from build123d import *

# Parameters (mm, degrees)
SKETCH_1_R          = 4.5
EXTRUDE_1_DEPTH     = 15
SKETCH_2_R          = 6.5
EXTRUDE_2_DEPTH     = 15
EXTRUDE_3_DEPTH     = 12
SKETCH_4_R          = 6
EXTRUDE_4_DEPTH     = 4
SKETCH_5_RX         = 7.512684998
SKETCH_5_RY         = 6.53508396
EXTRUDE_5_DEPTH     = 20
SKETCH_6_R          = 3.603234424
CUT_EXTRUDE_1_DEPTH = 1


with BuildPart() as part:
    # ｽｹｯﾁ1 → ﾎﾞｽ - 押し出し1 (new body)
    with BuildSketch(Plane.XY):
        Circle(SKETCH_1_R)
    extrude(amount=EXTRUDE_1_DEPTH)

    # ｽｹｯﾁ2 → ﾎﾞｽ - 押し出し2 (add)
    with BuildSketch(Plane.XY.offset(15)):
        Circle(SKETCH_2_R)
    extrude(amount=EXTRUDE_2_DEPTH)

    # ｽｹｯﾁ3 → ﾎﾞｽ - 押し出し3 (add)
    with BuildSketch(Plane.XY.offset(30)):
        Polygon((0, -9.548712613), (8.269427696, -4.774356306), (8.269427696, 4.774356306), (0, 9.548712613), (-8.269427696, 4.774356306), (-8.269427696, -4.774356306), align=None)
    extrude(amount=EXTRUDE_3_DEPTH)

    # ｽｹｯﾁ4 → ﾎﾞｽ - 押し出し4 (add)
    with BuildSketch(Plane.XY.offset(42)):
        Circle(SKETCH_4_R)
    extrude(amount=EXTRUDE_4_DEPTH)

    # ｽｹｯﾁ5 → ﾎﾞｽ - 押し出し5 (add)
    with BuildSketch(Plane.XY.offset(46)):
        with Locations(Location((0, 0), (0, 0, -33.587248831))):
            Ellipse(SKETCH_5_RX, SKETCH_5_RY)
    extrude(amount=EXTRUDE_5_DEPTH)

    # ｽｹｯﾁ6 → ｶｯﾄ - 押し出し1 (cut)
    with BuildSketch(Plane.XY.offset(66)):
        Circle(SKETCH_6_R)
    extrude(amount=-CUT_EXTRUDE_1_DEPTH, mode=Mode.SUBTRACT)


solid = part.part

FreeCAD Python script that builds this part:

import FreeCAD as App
import Part
import Sketcher
from FreeCAD import Vector
Q = App.Units.Quantity

doc = App.newDocument("Part")
body = doc.addObject("PartDesign::Body", "Body")

# Sketch on XY plane
sketch1 = doc.addObject("Sketcher::SketchObject", "Sketch")
body.addObject(sketch1)
sketch1.AttachmentSupport = (doc.XY_Plane, [""])
sketch1.MapMode = "FlatFace"
sketch1.addGeometry(Part.Circle(Vector(0, 0, 0), Vector(0, 0, 1), 4.5), False)
sketch1.addConstraint([
    Sketcher.Constraint("Coincident", 0, 3, -1, 1),
    Sketcher.Constraint("Diameter", 0, 9.0),
])
pad1 = doc.addObject("PartDesign::Pad", "Pad")
body.addObject(pad1)
pad1.Profile = sketch1
pad1.Length = 15

# Sketch on XY plane
sketch2 = doc.addObject("Sketcher::SketchObject", "Sketch001")
body.addObject(sketch2)
sketch2.AttachmentSupport = (doc.XY_Plane, [""])
sketch2.MapMode = "FlatFace"
sketch2.AttachmentOffset = App.Placement(Vector(0, 0, 15), App.Rotation())
sketch2.addGeometry(Part.Circle(Vector(0, 0, 0), Vector(0, 0, 1), 6), False)
sketch2.addConstraint([
    Sketcher.Constraint("Coincident", 0, 3, -1, 1),
    Sketcher.Constraint("Diameter", 0, 13.0),
])
pad2 = doc.addObject("PartDesign::Pad", "Pad001")
body.addObject(pad2)
pad2.Profile = sketch2
pad2.Length = 15

# Sketch on XY plane
sketch3 = doc.addObject("Sketcher::SketchObject", "Sketch002")
body.addObject(sketch3)
sketch3.AttachmentSupport = (doc.XY_Plane, [""])
sketch3.MapMode = "FlatFace"
sketch3.AttachmentOffset = App.Placement(Vector(0, 0, 30), App.Rotation())
sketch3.addGeometry([
    Part.LineSegment(Vector(0, -10, 0), Vector(8, -5, 0)),  # 0
    Part.LineSegment(Vector(8, -5, 0), Vector(8, 5, 0)),  # 1
    Part.LineSegment(Vector(8, 5, 0), Vector(0, 10, 0)),  # 2
    Part.LineSegment(Vector(0, 10, 0), Vector(-8, 5, 0)),  # 3
    Part.LineSegment(Vector(-8, 5, 0), Vector(-8, -5, 0)),  # 4
    Part.LineSegment(Vector(-8, -5, 0), Vector(0, -10, 0)),  # 5
], False)
sketch3.addConstraint([
    Sketcher.Constraint("Coincident", 0, 2, 1, 1),
    Sketcher.Constraint("Coincident", 1, 2, 2, 1),
    Sketcher.Constraint("Coincident", 2, 2, 3, 1),
    Sketcher.Constraint("Coincident", 3, 2, 4, 1),
    Sketcher.Constraint("Coincident", 4, 2, 5, 1),
    Sketcher.Constraint("Coincident", 5, 2, 0, 1),
    Sketcher.Constraint("Vertical", 1),
    Sketcher.Constraint("Vertical", 4),
    Sketcher.Constraint("Symmetric", 0, 2, 3, 2, -1, 1),
    Sketcher.Constraint("Symmetric", 2, 2, 5, 2, -1, 1),
    Sketcher.Constraint("PointOnObject", 2, 2, -2),
    Sketcher.Constraint("Parallel", 2, 5),
    Sketcher.Constraint("Horizontal", 1, 2, 3, 2),
    Sketcher.Constraint("Angle", 0, Q("30 deg")),
    Sketcher.Constraint("DistanceY", 1, 1, 1, 2, 9.548713),
    Sketcher.Constraint("DistanceY", 0, 2, 2, 2, 14.323069),
])
pad3 = doc.addObject("PartDesign::Pad", "Pad002")
body.addObject(pad3)
pad3.Profile = sketch3
pad3.Length = 12

# Sketch on XY plane
sketch4 = doc.addObject("Sketcher::SketchObject", "Sketch003")
body.addObject(sketch4)
sketch4.AttachmentSupport = (doc.XY_Plane, [""])
sketch4.MapMode = "FlatFace"
sketch4.AttachmentOffset = App.Placement(Vector(0, 0, 42), App.Rotation())
sketch4.addGeometry(Part.Circle(Vector(0, 0, 0), Vector(0, 0, 1), 6), False)
sketch4.addConstraint([
    Sketcher.Constraint("Coincident", 0, 3, -1, 1),
    Sketcher.Constraint("Diameter", 0, 12.0),
])
pad4 = doc.addObject("PartDesign::Pad", "Pad003")
body.addObject(pad4)
pad4.Profile = sketch4
pad4.Length = 4

# Sketch on XY plane
sketch5 = doc.addObject("Sketcher::SketchObject", "Sketch004")
body.addObject(sketch5)
sketch5.AttachmentSupport = (doc.XY_Plane, [""])
sketch5.MapMode = "FlatFace"
sketch5.AttachmentOffset = App.Placement(Vector(0, 0, 46), App.Rotation())
sketch5.addGeometry(Part.Ellipse(Vector(6.2584, -4.156064, 0), Vector(3.615249, 5.444015, 0), Vector(0, 0, 0)), False)
sketch5.addConstraint(Sketcher.Constraint("Block", 0))
pad5 = doc.addObject("PartDesign::Pad", "Pad004")
body.addObject(pad5)
pad5.Profile = sketch5
pad5.Length = 20

# Sketch on XY plane
sketch6 = doc.addObject("Sketcher::SketchObject", "Sketch005")
body.addObject(sketch6)
sketch6.AttachmentSupport = (doc.XY_Plane, [""])
sketch6.MapMode = "FlatFace"
sketch6.AttachmentOffset = App.Placement(Vector(0, 0, 66), App.Rotation())
sketch6.addGeometry(Part.Circle(Vector(0, 0, 0), Vector(0, 0, 1), 3.6), False)
sketch6.addConstraint([
    Sketcher.Constraint("Coincident", 0, 3, -1, 1),
    Sketcher.Constraint("Diameter", 0, 7.206469),
])
pocket1 = doc.addObject("PartDesign::Pocket", "Pocket")
body.addObject(pocket1)
pocket1.Profile = sketch6
pocket1.Length = 1

doc.recompute()
